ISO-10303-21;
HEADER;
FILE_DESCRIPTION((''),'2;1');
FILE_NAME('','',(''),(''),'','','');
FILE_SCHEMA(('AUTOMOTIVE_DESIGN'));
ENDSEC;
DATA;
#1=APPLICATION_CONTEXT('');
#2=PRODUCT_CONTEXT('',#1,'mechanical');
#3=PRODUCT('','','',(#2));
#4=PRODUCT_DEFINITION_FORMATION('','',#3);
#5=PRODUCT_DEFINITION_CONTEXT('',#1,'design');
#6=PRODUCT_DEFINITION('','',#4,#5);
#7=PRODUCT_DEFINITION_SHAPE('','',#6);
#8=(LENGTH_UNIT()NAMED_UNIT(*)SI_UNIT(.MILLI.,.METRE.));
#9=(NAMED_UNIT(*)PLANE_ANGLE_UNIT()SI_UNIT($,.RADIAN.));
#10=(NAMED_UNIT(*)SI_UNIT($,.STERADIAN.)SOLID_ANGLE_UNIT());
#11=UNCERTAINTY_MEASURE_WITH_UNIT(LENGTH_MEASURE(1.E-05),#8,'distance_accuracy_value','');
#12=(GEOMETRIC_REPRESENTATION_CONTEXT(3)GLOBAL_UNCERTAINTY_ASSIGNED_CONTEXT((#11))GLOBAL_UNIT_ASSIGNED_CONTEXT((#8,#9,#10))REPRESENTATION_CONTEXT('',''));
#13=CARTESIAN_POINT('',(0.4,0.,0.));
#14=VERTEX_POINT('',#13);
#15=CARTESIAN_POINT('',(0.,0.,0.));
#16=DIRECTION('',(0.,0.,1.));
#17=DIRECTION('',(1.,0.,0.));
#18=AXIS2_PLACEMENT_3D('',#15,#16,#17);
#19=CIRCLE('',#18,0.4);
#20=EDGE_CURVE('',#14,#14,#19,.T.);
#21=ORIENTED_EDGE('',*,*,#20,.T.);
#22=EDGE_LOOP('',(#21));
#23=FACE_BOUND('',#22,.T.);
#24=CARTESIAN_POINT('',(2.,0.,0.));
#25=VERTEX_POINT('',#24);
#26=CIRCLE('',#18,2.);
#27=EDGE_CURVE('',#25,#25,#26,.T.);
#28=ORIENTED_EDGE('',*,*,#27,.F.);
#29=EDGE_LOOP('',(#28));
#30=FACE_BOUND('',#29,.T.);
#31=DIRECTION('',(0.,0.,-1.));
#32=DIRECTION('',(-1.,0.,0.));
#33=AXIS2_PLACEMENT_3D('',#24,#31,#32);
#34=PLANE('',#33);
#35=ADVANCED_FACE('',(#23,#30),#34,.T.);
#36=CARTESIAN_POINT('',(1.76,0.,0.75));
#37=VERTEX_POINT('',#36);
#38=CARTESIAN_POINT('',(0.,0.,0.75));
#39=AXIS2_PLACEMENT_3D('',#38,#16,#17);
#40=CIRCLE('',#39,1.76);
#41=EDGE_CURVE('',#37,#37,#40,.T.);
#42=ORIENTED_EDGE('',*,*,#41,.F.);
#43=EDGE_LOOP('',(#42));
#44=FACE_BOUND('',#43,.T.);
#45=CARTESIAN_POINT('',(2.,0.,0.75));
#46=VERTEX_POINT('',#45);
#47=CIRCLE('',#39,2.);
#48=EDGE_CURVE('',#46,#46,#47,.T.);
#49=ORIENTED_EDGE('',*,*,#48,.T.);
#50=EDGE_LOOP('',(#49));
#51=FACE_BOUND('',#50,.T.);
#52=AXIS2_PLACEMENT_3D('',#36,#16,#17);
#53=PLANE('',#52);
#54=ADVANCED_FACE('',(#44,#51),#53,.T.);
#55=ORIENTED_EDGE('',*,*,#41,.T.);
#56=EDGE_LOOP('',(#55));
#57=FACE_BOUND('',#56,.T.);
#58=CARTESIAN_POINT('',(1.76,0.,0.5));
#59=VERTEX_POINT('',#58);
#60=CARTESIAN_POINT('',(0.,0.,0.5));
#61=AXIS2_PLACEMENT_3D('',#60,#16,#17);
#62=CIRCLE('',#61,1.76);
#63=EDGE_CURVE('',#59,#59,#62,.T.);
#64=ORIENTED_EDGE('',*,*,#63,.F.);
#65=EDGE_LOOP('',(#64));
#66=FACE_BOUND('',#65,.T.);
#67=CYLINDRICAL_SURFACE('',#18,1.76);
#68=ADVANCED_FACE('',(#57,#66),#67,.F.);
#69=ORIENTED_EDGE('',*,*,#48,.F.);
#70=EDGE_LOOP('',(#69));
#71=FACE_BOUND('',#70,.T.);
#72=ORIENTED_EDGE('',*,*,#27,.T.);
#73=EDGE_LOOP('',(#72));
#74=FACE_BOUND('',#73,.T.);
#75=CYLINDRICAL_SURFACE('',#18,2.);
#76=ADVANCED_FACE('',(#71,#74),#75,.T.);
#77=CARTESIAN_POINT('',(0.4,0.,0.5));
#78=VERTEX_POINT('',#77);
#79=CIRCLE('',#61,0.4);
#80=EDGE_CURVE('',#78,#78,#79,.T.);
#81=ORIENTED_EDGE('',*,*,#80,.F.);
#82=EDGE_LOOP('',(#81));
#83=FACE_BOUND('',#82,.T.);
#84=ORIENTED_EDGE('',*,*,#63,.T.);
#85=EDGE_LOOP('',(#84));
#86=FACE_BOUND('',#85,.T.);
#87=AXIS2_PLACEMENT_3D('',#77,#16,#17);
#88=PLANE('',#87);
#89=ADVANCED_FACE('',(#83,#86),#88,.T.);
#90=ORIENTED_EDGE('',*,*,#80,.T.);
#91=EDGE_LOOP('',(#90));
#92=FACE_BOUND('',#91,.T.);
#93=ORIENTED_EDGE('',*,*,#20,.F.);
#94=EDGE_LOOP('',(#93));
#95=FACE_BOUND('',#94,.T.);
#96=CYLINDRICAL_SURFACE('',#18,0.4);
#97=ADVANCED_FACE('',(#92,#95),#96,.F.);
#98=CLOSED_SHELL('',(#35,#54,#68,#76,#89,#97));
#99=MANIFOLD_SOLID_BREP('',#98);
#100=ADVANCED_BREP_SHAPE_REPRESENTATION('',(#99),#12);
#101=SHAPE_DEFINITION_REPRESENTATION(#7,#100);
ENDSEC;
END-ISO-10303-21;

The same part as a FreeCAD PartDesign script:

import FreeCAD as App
import Part
import Sketcher
Q = App.Units.Quantity


def add_polygon(sketch, points):
    """Adds a closed chain of lines whose ends are joined by coincident constraints."""
    first, n = sketch.GeometryCount, len(points)
    for a, b in zip(points, points[1:] + points[:1]):
        sketch.addGeometry(Part.LineSegment(App.Vector(*a, 0), App.Vector(*b, 0)), False)
    for i in range(n):
        sketch.addConstraint(Sketcher.Constraint("Coincident", first + i, 2, first + (i + 1) % n, 1))

doc = App.newDocument("Part")
body = doc.addObject("PartDesign::Body", "Body")

sketch1 = body.newObject("Sketcher::SketchObject", "Sketch")
sketch1.AttachmentSupport = (doc.getObject("XZ_Plane"), [""])
sketch1.MapMode = "FlatFace"
add_polygon(sketch1, [(2, 0.75), (2, 0), (0.4, 0), (0.4, 0.5), (1.76, 0.5), (1.76, 0.75)])
sketch1.addConstraint(Sketcher.Constraint("Vertical", 0))
sketch1.addConstraint(Sketcher.Constraint("Horizontal", 1))
sketch1.addConstraint(Sketcher.Constraint("Vertical", 2))
sketch1.addConstraint(Sketcher.Constraint("Horizontal", 3))
sketch1.addConstraint(Sketcher.Constraint("Vertical", 4))
sketch1.addConstraint(Sketcher.Constraint("Horizontal", 5))
sketch1.addConstraint(Sketcher.Constraint("PointOnObject", 0, 2, -1))
sketch1.addConstraint(Sketcher.Constraint("DistanceX", 1, 2, 1, 1, Q("1.6 mm")))
sketch1.addConstraint(Sketcher.Constraint("DistanceY", 2, 1, 2, 2, Q("0.5 mm")))
sketch1.addConstraint(Sketcher.Constraint("DistanceX", -1, 1, 0, 2, Q("2 mm")))
sketch1.addConstraint(Sketcher.Constraint("DistanceX", 3, 1, 3, 2, Q("1.36 mm")))
sketch1.addConstraint(Sketcher.Constraint("DistanceY", 0, 2, 0, 1, Q("0.75 mm")))
revolution = body.newObject("PartDesign::Revolution", "Revolution")
revolution.Profile = sketch1
revolution.ReferenceAxis = (sketch1, ["V_Axis"])
revolution.Angle = 360

doc.recompute()
